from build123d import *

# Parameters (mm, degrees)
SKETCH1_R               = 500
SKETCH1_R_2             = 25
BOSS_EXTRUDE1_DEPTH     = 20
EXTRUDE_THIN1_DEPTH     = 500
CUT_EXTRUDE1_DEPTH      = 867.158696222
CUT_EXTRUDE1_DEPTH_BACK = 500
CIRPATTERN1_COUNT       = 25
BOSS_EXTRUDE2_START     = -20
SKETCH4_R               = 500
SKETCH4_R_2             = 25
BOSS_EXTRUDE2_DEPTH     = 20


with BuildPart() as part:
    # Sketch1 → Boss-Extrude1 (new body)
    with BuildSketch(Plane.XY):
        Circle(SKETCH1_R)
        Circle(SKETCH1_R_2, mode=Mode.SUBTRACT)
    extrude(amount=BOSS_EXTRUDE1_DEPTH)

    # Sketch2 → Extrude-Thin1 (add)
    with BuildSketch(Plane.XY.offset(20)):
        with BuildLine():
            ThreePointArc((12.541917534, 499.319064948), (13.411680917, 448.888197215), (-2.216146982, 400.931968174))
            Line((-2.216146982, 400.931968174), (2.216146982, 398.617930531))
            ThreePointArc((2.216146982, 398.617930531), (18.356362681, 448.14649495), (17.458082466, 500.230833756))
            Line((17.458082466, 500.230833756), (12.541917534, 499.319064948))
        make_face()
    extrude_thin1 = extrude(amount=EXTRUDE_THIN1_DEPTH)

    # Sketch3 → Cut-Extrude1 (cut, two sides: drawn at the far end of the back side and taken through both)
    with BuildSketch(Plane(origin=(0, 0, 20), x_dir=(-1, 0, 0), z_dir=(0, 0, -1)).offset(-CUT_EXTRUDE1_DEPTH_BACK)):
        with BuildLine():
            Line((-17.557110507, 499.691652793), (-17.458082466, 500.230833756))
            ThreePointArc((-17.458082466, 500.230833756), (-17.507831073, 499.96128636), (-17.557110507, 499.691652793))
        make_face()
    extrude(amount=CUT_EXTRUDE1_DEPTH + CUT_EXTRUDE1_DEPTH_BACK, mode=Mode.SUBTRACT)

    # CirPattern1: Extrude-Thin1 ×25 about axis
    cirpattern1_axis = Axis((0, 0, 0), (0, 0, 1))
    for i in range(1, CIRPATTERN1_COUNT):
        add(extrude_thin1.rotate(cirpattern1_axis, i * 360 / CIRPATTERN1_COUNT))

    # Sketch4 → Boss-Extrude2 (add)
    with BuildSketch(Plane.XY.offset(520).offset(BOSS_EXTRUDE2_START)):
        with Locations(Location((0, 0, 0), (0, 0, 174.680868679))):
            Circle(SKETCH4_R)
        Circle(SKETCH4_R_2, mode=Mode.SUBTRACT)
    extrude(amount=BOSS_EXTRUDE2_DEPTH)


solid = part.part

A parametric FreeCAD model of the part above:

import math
import FreeCAD as App
import Part
import Sketcher
from FreeCAD import Vector

doc = App.newDocument("Part")
body = doc.addObject("PartDesign::Body", "Body")

sketch1 = body.newObject("Sketcher::SketchObject", "Sketch")
sketch1.AttachmentSupport = (doc.getObject("XY_Plane"), [""])
sketch1.MapMode = "FlatFace"
sketch1.addGeometry([
    Part.Circle(Vector(0, 0, 0), Vector(0, 0, 1), 500),
    Part.Circle(Vector(0, 0, 0), Vector(0, 0, 1), 25),
], False)
sketch1.addConstraint([
    Sketcher.Constraint("Coincident", 0, 3, -1, 1),
    Sketcher.Constraint("Coincident", 1, 3, -1, 1),
    Sketcher.Constraint("Diameter", 0, 1000.0),
    Sketcher.Constraint("Diameter", 1, 50.0),
])
pad1 = body.newObject("PartDesign::Pad", "Pad")
pad1.Profile = sketch1
pad1.Length = 20

sketch2 = body.newObject("Sketcher::SketchObject", "Sketch001")
sketch2.AttachmentSupport = (doc.getObject("XY_Plane"), [""])
sketch2.MapMode = "FlatFace"
sketch2.AttachmentOffset = App.Placement(Vector(0, 0, 20), App.Rotation())
sketch2.addGeometry([
    Part.ArcOfCircle(Part.Circle(Vector(-137.401113, 471.510116, 0), Vector(0, 0, 1), 152.5), math.radians(-27.568421), math.radians(10.50689)),
    Part.LineSegment(Vector(-2.216147, 400.931968, 0), Vector(2.216147, 398.617931, 0)),
    Part.ArcOfCircle(Part.Circle(Vector(-137.401113, 471.510116, 0), Vector(0, 0, 1), 157.5), math.radians(-27.568421), math.radians(10.50689)),
    Part.LineSegment(Vector(17.458082, 500.230834, 0), Vector(12.541918, 499.319065, 0)),
], False)
sketch2.addConstraint([
    Sketcher.Constraint("Coincident", 0, 1, 1, 1),
    Sketcher.Constraint("Coincident", 1, 2, 2, 1),
    Sketcher.Constraint("Coincident", 2, 2, 3, 1),
    Sketcher.Constraint("Coincident", 3, 2, 0, 2),
    Sketcher.Constraint("Coincident", 2, 3, 0, 3),
    Sketcher.Constraint("Radius", 0, 152.5),
    Sketcher.Constraint("Radius", 2, 157.5),
    Sketcher.Constraint("DistanceY", -1, 1, 0, 1, 400.931968),
    Sketcher.Constraint("DistanceY", -1, 1, 1, 2, 398.617931),
    Sketcher.Constraint("DistanceY", 0, 1, 0, 3, 70.578148),
    Sketcher.Constraint("DistanceX", 0, 1, 2, 2, 19.674229),
    Sketcher.Constraint("DistanceY", 3, 2, 2, 2, 0.911769),
    Sketcher.Constraint("DistanceX", 0, 3, -1, 1, 137.401113),
])
pad2 = body.newObject("PartDesign::Pad", "Pad001")
pad2.Profile = sketch2
pad2.Length = 500

sketch3 = body.newObject("Sketcher::SketchObject", "Sketch002")
sketch3.AttachmentSupport = (doc.getObject("XY_Plane"), [""])
sketch3.MapMode = "FlatFace"
sketch3.AttachmentOffset = App.Placement(Vector(0, 0, 20), App.Rotation())
sketch3.addGeometry([
    Part.LineSegment(Vector(17.557111, 499.691653, 0), Vector(17.458082, 500.230834, 0)),
    Part.ArcOfCircle(Part.Circle(Vector(-137.401037, 471.51013, 0), Vector(0, 0, 1), 157.499923), math.radians(10.307464), math.radians(10.50689)),
], False)
sketch3.addConstraint([
    Sketcher.Constraint("Coincident", 0, 1, 1, 1),
    Sketcher.Constraint("Coincident", 1, 2, 0, 2),
    Sketcher.Constraint("Radius", 1, 157.499923),
    Sketcher.Constraint("Distance", 0, 0.548199),
    Sketcher.Constraint("DistanceY", -1, 1, 1, 3, 471.51013),
    Sketcher.Constraint("DistanceX", -1, 1, 0, 1, 17.557111),
    Sketcher.Constraint("DistanceX", 1, 3, 1, 2, 154.859119),
])
pocket1 = body.newObject("PartDesign::Pocket", "Pocket")
pocket1.Profile = sketch3
pocket1.Type = "ThroughAll"
pocket1.Midplane = True
doc.recompute()

polarpattern = body.newObject("PartDesign::PolarPattern", "PolarPattern")
polarpattern.Originals = [pad2]
polarpattern.Axis = (doc.getObject("Z_Axis"), [""])
polarpattern.Angle = 360
polarpattern.Occurrences = 25
body.Tip = polarpattern

sketch4 = body.newObject("Sketcher::SketchObject", "Sketch003")
sketch4.AttachmentSupport = (doc.getObject("XY_Plane"), [""])
sketch4.MapMode = "FlatFace"
sketch4.AttachmentOffset = App.Placement(Vector(0, 0, 500), App.Rotation())
sketch4.addGeometry([
    Part.Circle(Vector(0, 0, 0), Vector(0, 0, 1), 500),
    Part.Circle(Vector(0, 0, 0), Vector(0, 0, 1), 25),
], False)
sketch4.addConstraint([
    Sketcher.Constraint("Coincident", 0, 3, -1, 1),
    Sketcher.Constraint("Coincident", 1, 3, -1, 1),
    Sketcher.Constraint("Diameter", 0, 1000.0),
    Sketcher.Constraint("Diameter", 1, 50.0),
])
pad3 = body.newObject("PartDesign::Pad", "Pad002")
pad3.Profile = sketch4
pad3.Length = 20

doc.recompute()
